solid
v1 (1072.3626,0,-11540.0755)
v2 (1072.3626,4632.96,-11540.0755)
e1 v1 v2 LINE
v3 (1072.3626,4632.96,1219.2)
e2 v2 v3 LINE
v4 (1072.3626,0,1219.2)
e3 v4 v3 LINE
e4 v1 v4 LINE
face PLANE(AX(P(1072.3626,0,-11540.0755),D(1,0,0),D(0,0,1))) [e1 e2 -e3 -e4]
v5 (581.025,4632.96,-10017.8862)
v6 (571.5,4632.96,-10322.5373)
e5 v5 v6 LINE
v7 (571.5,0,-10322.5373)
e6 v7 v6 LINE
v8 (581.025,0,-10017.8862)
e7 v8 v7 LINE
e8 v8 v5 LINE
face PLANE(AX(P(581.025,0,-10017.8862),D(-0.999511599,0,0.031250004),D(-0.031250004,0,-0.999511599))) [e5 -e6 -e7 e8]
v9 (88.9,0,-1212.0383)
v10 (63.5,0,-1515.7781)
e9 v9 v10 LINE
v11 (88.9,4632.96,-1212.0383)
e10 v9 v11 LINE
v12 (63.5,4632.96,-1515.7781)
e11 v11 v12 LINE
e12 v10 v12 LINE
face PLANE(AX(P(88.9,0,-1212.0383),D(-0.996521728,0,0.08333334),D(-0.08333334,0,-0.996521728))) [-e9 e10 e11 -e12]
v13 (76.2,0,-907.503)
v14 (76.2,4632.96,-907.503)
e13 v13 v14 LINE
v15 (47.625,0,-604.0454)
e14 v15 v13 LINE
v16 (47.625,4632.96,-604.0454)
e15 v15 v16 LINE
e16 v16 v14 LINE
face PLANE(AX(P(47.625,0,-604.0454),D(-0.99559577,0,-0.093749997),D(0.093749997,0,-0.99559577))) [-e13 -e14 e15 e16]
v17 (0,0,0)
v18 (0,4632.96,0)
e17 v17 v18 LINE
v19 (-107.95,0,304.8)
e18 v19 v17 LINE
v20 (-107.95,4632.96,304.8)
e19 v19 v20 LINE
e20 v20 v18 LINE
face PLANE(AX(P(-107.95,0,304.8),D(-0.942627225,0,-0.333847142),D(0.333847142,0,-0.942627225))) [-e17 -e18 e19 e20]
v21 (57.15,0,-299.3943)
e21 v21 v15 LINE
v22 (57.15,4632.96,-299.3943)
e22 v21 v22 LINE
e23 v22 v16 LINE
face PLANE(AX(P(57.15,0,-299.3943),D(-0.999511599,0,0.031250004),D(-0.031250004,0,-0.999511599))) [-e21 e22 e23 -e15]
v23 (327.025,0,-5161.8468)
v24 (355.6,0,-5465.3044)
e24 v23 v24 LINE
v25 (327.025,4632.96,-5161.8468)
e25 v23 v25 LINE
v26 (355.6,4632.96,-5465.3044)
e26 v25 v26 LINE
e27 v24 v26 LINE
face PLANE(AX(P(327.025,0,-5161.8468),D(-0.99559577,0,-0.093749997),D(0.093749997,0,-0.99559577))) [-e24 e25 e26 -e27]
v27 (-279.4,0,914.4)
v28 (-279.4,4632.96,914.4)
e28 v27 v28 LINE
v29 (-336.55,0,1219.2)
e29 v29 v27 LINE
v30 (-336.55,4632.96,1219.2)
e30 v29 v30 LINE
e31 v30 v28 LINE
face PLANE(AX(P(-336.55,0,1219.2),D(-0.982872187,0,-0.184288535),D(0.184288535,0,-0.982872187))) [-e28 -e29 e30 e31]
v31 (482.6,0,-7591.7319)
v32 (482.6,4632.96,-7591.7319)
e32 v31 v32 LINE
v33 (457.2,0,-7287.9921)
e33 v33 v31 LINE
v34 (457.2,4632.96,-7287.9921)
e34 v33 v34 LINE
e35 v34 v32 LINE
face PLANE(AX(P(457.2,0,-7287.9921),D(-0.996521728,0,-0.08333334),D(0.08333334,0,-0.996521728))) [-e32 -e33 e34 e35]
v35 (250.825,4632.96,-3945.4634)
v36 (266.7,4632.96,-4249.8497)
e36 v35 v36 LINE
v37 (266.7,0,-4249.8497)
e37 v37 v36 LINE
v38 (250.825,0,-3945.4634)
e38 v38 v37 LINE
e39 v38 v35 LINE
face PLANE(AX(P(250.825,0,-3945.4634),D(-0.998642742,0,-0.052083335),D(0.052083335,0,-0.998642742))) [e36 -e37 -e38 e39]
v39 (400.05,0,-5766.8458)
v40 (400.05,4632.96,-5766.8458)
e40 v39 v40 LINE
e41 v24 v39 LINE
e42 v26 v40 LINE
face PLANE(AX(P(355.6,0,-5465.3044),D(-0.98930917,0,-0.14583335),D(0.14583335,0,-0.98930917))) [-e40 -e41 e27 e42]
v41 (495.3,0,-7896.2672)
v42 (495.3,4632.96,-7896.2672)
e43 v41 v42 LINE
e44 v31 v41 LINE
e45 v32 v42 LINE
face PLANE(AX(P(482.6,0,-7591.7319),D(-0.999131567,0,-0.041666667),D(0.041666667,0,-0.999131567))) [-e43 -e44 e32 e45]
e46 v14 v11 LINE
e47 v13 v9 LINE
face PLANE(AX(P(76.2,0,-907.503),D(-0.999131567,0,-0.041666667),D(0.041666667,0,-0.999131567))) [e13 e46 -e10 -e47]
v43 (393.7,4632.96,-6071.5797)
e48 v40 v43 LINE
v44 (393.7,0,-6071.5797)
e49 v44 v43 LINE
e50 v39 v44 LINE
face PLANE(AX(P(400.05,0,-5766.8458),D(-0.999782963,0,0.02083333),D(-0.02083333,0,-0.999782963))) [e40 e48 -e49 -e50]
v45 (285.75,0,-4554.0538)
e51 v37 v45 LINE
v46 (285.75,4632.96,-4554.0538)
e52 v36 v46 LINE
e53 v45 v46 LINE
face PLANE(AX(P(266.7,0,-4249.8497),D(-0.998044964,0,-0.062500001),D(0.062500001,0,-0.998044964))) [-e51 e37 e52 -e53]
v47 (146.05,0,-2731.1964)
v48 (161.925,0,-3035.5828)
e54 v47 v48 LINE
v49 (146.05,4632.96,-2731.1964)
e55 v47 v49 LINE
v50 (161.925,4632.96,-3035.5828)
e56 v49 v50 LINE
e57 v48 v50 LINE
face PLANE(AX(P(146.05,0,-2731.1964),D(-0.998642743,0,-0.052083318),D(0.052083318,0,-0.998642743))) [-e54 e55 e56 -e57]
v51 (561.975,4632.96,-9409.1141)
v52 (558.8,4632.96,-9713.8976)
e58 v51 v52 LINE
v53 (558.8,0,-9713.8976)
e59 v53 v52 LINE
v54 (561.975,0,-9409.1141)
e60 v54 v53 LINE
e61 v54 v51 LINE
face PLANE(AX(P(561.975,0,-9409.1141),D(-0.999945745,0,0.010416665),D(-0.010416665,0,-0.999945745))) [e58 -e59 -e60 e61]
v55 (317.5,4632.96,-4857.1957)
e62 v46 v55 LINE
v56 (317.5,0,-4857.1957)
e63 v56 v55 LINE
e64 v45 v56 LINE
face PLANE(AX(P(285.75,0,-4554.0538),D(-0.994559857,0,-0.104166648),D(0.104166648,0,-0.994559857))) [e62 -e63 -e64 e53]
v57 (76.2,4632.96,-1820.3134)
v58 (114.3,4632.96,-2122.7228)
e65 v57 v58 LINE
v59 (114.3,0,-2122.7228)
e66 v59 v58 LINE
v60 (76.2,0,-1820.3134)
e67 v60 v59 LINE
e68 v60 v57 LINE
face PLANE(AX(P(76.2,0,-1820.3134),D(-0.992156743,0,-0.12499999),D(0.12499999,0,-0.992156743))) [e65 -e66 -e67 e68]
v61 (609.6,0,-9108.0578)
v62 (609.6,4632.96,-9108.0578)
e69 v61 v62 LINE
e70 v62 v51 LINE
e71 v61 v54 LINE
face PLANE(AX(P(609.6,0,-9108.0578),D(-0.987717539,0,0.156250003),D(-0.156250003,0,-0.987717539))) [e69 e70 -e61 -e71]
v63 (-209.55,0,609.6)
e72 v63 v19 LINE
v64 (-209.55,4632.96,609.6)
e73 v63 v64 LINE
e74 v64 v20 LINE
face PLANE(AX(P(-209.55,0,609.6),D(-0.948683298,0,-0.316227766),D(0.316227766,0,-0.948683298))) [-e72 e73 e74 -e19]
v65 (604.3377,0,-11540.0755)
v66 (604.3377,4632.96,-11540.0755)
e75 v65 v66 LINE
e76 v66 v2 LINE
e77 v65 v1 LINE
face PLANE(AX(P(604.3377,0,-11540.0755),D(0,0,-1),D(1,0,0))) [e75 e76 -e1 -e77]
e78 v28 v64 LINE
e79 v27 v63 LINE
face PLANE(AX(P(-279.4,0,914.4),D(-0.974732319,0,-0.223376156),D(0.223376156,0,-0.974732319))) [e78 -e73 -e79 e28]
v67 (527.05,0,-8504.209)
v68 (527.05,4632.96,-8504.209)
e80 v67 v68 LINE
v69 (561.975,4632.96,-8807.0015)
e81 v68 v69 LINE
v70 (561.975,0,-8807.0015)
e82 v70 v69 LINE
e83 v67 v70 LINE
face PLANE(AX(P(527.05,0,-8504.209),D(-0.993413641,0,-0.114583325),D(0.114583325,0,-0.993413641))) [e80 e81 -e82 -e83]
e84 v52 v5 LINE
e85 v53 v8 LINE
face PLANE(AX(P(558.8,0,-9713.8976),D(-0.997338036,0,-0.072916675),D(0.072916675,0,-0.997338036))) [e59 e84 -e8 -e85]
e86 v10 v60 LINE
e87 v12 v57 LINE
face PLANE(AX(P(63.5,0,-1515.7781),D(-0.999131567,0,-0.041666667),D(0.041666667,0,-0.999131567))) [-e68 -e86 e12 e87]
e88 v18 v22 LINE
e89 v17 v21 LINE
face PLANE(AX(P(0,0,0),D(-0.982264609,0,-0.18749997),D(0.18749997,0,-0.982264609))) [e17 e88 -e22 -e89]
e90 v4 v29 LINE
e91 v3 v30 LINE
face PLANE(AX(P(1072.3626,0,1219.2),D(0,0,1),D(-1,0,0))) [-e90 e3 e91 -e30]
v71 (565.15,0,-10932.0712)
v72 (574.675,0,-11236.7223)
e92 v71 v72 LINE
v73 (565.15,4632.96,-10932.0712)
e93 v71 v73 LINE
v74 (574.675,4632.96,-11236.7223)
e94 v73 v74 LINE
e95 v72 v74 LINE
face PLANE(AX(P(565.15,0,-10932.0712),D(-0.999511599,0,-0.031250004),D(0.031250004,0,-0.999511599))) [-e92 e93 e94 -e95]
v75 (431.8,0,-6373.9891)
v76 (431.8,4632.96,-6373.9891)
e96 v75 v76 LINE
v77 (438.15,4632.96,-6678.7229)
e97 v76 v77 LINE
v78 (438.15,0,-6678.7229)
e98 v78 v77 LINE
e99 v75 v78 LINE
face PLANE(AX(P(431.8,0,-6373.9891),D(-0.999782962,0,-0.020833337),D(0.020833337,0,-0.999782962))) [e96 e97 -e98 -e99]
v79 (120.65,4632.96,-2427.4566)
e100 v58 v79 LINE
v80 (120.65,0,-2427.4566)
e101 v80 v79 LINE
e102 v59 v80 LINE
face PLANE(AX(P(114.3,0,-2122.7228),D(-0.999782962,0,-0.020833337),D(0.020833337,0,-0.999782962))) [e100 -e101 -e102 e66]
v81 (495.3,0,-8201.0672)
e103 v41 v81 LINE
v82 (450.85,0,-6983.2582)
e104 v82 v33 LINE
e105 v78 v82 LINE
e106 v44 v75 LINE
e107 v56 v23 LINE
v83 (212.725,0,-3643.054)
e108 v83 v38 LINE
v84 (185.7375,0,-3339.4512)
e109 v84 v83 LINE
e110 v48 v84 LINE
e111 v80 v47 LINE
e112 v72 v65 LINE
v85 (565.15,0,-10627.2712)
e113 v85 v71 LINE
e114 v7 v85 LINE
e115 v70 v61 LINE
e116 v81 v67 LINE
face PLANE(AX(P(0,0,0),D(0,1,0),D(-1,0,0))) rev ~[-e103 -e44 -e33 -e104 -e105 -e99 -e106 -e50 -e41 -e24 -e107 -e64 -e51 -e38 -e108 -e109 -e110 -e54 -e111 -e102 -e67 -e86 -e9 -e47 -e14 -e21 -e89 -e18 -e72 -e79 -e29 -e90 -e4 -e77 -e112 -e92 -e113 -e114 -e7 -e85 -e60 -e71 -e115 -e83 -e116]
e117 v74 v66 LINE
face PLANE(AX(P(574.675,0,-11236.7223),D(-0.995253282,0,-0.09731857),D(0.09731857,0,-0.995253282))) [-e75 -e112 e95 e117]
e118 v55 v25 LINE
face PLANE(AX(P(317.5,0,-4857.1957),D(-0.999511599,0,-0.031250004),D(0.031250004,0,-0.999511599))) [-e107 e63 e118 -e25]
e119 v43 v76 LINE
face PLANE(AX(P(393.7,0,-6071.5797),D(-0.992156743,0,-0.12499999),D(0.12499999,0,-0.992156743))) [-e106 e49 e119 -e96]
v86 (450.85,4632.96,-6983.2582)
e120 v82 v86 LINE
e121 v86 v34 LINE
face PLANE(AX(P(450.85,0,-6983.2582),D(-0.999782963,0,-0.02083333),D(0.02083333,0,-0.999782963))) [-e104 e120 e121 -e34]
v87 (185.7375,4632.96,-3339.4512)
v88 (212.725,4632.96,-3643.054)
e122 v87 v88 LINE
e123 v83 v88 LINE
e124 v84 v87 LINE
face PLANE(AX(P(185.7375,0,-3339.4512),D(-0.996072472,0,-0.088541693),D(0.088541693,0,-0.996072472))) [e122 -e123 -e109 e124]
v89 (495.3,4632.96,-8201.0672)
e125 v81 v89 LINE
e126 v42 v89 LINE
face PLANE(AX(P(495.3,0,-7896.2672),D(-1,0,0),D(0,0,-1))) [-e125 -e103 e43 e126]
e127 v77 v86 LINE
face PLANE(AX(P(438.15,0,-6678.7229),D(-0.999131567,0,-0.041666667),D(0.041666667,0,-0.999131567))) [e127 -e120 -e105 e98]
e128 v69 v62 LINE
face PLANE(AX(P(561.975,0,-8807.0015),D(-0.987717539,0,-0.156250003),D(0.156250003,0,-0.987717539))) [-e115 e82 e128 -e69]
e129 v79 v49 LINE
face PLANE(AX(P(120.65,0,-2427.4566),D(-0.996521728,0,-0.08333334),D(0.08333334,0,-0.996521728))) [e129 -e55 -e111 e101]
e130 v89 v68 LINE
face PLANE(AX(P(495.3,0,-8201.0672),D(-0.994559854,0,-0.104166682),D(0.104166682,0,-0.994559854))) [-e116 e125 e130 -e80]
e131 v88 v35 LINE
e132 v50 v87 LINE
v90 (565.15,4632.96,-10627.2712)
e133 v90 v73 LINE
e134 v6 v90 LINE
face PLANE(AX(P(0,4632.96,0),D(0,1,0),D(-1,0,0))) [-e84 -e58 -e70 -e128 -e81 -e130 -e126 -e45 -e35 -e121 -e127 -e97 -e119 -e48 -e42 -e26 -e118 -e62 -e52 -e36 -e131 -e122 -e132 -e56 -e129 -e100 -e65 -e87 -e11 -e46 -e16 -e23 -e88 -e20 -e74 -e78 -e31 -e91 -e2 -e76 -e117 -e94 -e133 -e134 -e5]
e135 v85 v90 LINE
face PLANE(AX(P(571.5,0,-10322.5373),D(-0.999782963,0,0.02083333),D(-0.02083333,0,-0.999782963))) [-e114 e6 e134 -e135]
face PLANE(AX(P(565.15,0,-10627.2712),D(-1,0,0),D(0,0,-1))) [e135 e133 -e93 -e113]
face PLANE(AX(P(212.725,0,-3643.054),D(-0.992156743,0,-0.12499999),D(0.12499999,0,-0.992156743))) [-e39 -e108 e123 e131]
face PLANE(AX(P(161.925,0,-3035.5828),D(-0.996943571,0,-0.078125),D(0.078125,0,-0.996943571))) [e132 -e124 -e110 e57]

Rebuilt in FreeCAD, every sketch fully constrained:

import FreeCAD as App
import Part
import Sketcher
Q = App.Units.Quantity


def add_polygon(sketch, points):
    """Adds a closed chain of lines whose ends are joined by coincident constraints."""
    first, n = sketch.GeometryCount, len(points)
    for a, b in zip(points, points[1:] + points[:1]):
        sketch.addGeometry(Part.LineSegment(App.Vector(*a, 0), App.Vector(*b, 0)), False)
    for i in range(n):
        sketch.addConstraint(Sketcher.Constraint("Coincident", first + i, 2, first + (i + 1) % n, 1))

doc = App.newDocument("Part")
body = doc.addObject("PartDesign::Body", "Body")

# Sketch on XZ plane
sketch1 = body.newObject("Sketcher::SketchObject", "Sketch")
sketch1.AttachmentSupport = (doc.getObject("XZ_Plane"), [""])
sketch1.MapMode = "FlatFace"
add_polygon(sketch1, [(-279, 914), (-337, 1219), (1072, 1219), (1072, -11540), (604, -11540), (575, -11237), (565, -10932), (565, -10627), (572, -10323), (581, -10018), (559, -9714), (562, -9409), (610, -9108), (562, -8807), (527, -8504), (495, -8201), (495, -7896), (483, -7592), (457, -7288), (451, -6983), (438, -6679), (432, -6374), (394, -6072), (400, -5767), (356, -5465), (327, -5162), (318, -4857), (286, -4554), (267, -4250), (251, -3945), (213, -3643), (186, -3339), (162, -3036), (146, -2731), (121, -2427), (114, -2123), (76, -1820), (64, -1516), (89, -1212), (76, -908), (48, -604), (57, -299), (0, 0), (-108, 305), (-210, 610)])  # lines 0-44
sketch1.addConstraint(Sketcher.Constraint("Horizontal", 1))
sketch1.addConstraint(Sketcher.Constraint("Vertical", 2))
sketch1.addConstraint(Sketcher.Constraint("Horizontal", 3))
sketch1.addConstraint(Sketcher.Constraint("Vertical", 6))
sketch1.addConstraint(Sketcher.Constraint("Vertical", 15))
sketch1.addConstraint(Sketcher.Constraint("Coincident", 41, 2, -1, 1))
sketch1.addConstraint(Sketcher.Constraint("Parallel", 16, 19))
sketch1.addConstraint(Sketcher.Constraint("Parallel", 18, 20))
sketch1.addConstraint(Sketcher.Constraint("Parallel", 7, 22))
sketch1.addConstraint(Sketcher.Constraint("Parallel", 5, 25))
sketch1.addConstraint(Sketcher.Constraint("Parallel", 14, 26))
sketch1.addConstraint(Sketcher.Constraint("Parallel", 21, 29))
sketch1.addConstraint(Sketcher.Constraint("Parallel", 28, 32))
sketch1.addConstraint(Sketcher.Constraint("Parallel", 17, 33))
sketch1.addConstraint(Sketcher.Constraint("Parallel", 20, 34))
sketch1.addConstraint(Sketcher.Constraint("Parallel", 29, 35))
sketch1.addConstraint(Sketcher.Constraint("Parallel", 19, 36))
sketch1.addConstraint(Sketcher.Constraint("Parallel", 36, 38))
sketch1.addConstraint(Sketcher.Constraint("Parallel", 24, 39))
sketch1.addConstraint(Sketcher.Constraint("Parallel", 8, 40))
sketch1.addConstraint(Sketcher.Constraint("Vertical", 10, 2, 12, 2))
sketch1.addConstraint(Sketcher.Constraint("Vertical", 35, 2, 38, 2))
sketch1.addConstraint(Sketcher.Constraint("Equal", 6, 15))
sketch1.addConstraint(Sketcher.Constraint("Equal", 4, 5))
sketch1.addConstraint(Sketcher.Constraint("Equal", 5, 7))
sketch1.addConstraint(Sketcher.Constraint("Equal", 7, 8))
sketch1.addConstraint(Sketcher.Constraint("Equal", 8, 9))
sketch1.addConstraint(Sketcher.Constraint("Equal", 9, 10))
sketch1.addConstraint(Sketcher.Constraint("Equal", 10, 11))
sketch1.addConstraint(Sketcher.Constraint("Equal", 11, 12))
sketch1.addConstraint(Sketcher.Constraint("Equal", 12, 13))
sketch1.addConstraint(Sketcher.Constraint("Equal", 13, 14))
sketch1.addConstraint(Sketcher.Constraint("Equal", 14, 16))
sketch1.addConstraint(Sketcher.Constraint("Equal", 16, 17))
sketch1.addConstraint(Sketcher.Constraint("Equal", 17, 18))
sketch1.addConstraint(Sketcher.Constraint("Equal", 18, 19))
sketch1.addConstraint(Sketcher.Constraint("Equal", 19, 20))
sketch1.addConstraint(Sketcher.Constraint("Equal", 20, 21))
sketch1.addConstraint(Sketcher.Constraint("Equal", 21, 22))
sketch1.addConstraint(Sketcher.Constraint("Equal", 22, 23))
sketch1.addConstraint(Sketcher.Constraint("Equal", 23, 24))
sketch1.addConstraint(Sketcher.Constraint("Equal", 24, 25))
sketch1.addConstraint(Sketcher.Constraint("Equal", 25, 26))
sketch1.addConstraint(Sketcher.Constraint("Equal", 26, 27))
sketch1.addConstraint(Sketcher.Constraint("Equal", 27, 28))
sketch1.addConstraint(Sketcher.Constraint("Equal", 28, 29))
sketch1.addConstraint(Sketcher.Constraint("Equal", 29, 30))
sketch1.addConstraint(Sketcher.Constraint("Equal", 30, 31))
sketch1.addConstraint(Sketcher.Constraint("Equal", 31, 32))
sketch1.addConstraint(Sketcher.Constraint("Equal", 32, 33))
sketch1.addConstraint(Sketcher.Constraint("Equal", 33, 34))
sketch1.addConstraint(Sketcher.Constraint("Equal", 34, 35))
sketch1.addConstraint(Sketcher.Constraint("Equal", 35, 36))
sketch1.addConstraint(Sketcher.Constraint("Equal", 36, 37))
sketch1.addConstraint(Sketcher.Constraint("Equal", 37, 38))
sketch1.addConstraint(Sketcher.Constraint("Equal", 38, 39))
sketch1.addConstraint(Sketcher.Constraint("Equal", 39, 40))
sketch1.addConstraint(Sketcher.Constraint("Equal", 40, 41))
sketch1.addConstraint(Sketcher.Constraint("DistanceY", 6, 1, 6, 2, Q("12 in")))
sketch1.addConstraint(Sketcher.Constraint("Distance", 4, Q("12 in")))
sketch1.addConstraint(Sketcher.Constraint("DistanceY", -1, 1, 0, 2, Q("48 in")))
sketch1.addConstraint(Sketcher.Constraint("DistanceX", -1, 1, 16, 2, Q("19 in")))
sketch1.addConstraint(Sketcher.Constraint("DistanceX", -1, 1, 17, 2, Q("18 in")))
sketch1.addConstraint(Sketcher.Constraint("DistanceX", -1, 1, 20, 2, Q("17 in")))
sketch1.addConstraint(Sketcher.Constraint("DistanceY", -1, 1, 42, 2, Q("12 in")))
sketch1.addConstraint(Sketcher.Constraint("DistanceY", 42, 2, 43, 2, Q("12 in")))
sketch1.addConstraint(Sketcher.Constraint("DistanceY", 44, 2, 0, 2, Q("12 in")))
sketch1.addConstraint(Sketcher.Constraint("DistanceX", -1, 1, 37, 2, Q("3.5 in")))
sketch1.addConstraint(Sketcher.Constraint("DistanceX", 21, 2, 16, 2, Q("3.5 in")))
sketch1.addConstraint(Sketcher.Constraint("DistanceX", 27, 2, 23, 2, Q("3.5 in")))
sketch1.addConstraint(Sketcher.Constraint("DistanceX", 31, 2, 28, 2, Q("3.5 in")))
sketch1.addConstraint(Sketcher.Constraint("DistanceX", 13, 2, 9, 2, Q("1.25 in")))
sketch1.addConstraint(Sketcher.Constraint("DistanceX", 14, 2, 13, 2, Q("1.25 in")))
sketch1.addConstraint(Sketcher.Constraint("DistanceX", 18, 2, 16, 2, Q("1.25 in")))
sketch1.addConstraint(Sketcher.Constraint("DistanceX", 22, 2, 20, 2, Q("1.25 in")))
sketch1.addConstraint(Sketcher.Constraint("DistanceX", 40, 2, 37, 2, Q("1.25 in")))
sketch1.addConstraint(Sketcher.Constraint("DistanceX", -1, 1, 8, 2, Q("22.875 in")))
sketch1.addConstraint(Sketcher.Constraint("DistanceX", -1, 1, 11, 2, Q("24 in")))
sketch1.addConstraint(Sketcher.Constraint("DistanceX", -1, 1, 23, 2, Q("14 in")))
sketch1.addConstraint(Sketcher.Constraint("DistanceX", 44, 2, -1, 1, Q("11 in")))
sketch1.addConstraint(Sketcher.Constraint("DistanceX", 25, 2, 21, 2, Q("3 in")))
sketch1.addConstraint(Sketcher.Constraint("DistanceX", 28, 2, 24, 2, Q("3 in")))
sketch1.addConstraint(Sketcher.Constraint("DistanceX", 0, 2, 42, 2, Q("9 in")))
sketch1.addConstraint(Sketcher.Constraint("DistanceX", 43, 2, 42, 2, Q("4 in")))
sketch1.addConstraint(Sketcher.Constraint("DistanceX", 0, 2, 5, 2, Q("35.5 in")))
sketch1.addConstraint(Sketcher.Constraint("DistanceX", 1, 1, 1, 2, Q("55.469 in")))
sketch1.addConstraint(Sketcher.Constraint("Angle", 11, Q("81.0107 deg")))
sketch1.addConstraint(Sketcher.Constraint("Angle", 30, Q("95.0797 deg")))
sketch1.addConstraint(Sketcher.Constraint("DistanceX", 3, 2, 3, 1, 468.025))
pad1 = body.newObject("PartDesign::Pad", "Pad")
pad1.Profile = sketch1
pad1.Length = Q("182.4 in")
pad1.Reversed = True

doc.recompute()
